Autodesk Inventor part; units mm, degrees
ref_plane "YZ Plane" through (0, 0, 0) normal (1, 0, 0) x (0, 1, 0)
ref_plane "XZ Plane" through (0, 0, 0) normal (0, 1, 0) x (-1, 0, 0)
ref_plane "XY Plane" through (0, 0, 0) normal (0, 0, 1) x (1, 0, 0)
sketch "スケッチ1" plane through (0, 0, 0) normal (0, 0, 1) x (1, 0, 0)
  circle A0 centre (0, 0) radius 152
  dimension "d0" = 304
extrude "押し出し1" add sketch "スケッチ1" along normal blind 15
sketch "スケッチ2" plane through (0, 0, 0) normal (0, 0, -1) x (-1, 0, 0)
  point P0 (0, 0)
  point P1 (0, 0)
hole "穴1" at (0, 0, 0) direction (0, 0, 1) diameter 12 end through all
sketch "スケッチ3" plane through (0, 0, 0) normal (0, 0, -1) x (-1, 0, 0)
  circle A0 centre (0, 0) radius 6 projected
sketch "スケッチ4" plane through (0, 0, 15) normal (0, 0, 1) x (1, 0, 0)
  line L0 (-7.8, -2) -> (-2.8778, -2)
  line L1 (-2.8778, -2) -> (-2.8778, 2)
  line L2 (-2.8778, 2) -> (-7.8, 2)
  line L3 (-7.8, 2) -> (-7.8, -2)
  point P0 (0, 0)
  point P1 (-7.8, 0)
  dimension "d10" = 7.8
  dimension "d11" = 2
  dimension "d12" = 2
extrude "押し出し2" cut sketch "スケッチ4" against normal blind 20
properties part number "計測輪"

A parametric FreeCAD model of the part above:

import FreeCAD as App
import Part
import Sketcher

V = App.Vector
Q = App.Units.Quantity

doc = App.newDocument("Part")
params = doc.addObject("Spreadsheet::Sheet", "Params")
for row, (alias, value) in enumerate([
    ("sketch1_diameter", "304 mm"),
    ("pad1_length", "15 mm"),
    ("sketch2_diameter", "12 mm"),
    ("hole_diameter", "12 mm"),
    ("pocket1_length", "20 mm"),
], start=1):
    params.set(f"A{row}", alias)
    params.set(f"B{row}", "=" + value)
    params.setAlias(f"B{row}", alias)

body = doc.addObject("PartDesign::Body", "Body")

# Sketch on XY plane
sketch1 = doc.addObject("Sketcher::SketchObject", "Sketch")
body.addObject(sketch1)
sketch1.AttachmentSupport = (doc.XY_Plane, [""])
sketch1.MapMode = "FlatFace"
sketch1.addGeometry(Part.Circle(V(0, 0, 0), V(0, 0, 1), 152), False)
sketch1.addConstraint([
    Sketcher.Constraint("Coincident", 0, 3, -1, 1),
    Sketcher.Constraint("Diameter", 0, Q("304 mm")),
])
sketch1.setExpression("Constraints[1]", "Params.sketch1_diameter")
pad1 = doc.addObject("PartDesign::Pad", "Pad")
body.addObject(pad1)
pad1.Profile = sketch1
pad1.setExpression("Length", "Params.pad1_length")

# Sketch on XY plane
sketch2 = doc.addObject("Sketcher::SketchObject", "Sketch001")
body.addObject(sketch2)
sketch2.AttachmentSupport = (doc.XY_Plane, [""])
sketch2.MapMode = "FlatFace"
sketch2.addGeometry(Part.Circle(V(0, 0, 0), V(0, 0, 1), 6), False)
sketch2.addConstraint([
    Sketcher.Constraint("Coincident", 0, 3, -1, 1),
    Sketcher.Constraint("Diameter", 0, Q("12 mm")),
])
sketch2.setExpression("Constraints[1]", "Params.sketch2_diameter")
doc.recompute()
hole = doc.addObject("PartDesign::Hole", "Hole")
body.addObject(hole)
hole.Profile = sketch2
hole.ThreadType = "None"
hole.setExpression("Diameter", "Params.hole_diameter")
hole.DepthType = "ThroughAll"
hole.Reversed = True

# Sketch on XY plane
sketch3 = doc.addObject("Sketcher::SketchObject", "Sketch002")
body.addObject(sketch3)
sketch3.AttachmentSupport = (doc.XY_Plane, [""])
sketch3.MapMode = "FlatFace"
sketch3.AttachmentOffset = App.Placement(V(0, 0, 15), App.Rotation())
sketch3.addGeometry([
    Part.LineSegment(V(-7.8, 2, 0), V(-7.8, -2, 0)),
    Part.LineSegment(V(-7.8, -2, 0), V(-2.8778, -2, 0)),
    Part.LineSegment(V(-2.8778, -2, 0), V(-2.8778, 2, 0)),
    Part.LineSegment(V(-2.8778, 2, 0), V(-7.8, 2, 0)),
], False)
sketch3.addConstraint([
    Sketcher.Constraint("Coincident", 0, 2, 1, 1),
    Sketcher.Constraint("Coincident", 1, 2, 2, 1),
    Sketcher.Constraint("Coincident", 2, 2, 3, 1),
    Sketcher.Constraint("Coincident", 3, 2, 0, 1),
    Sketcher.Constraint("Vertical", 0),
    Sketcher.Constraint("Horizontal", 1),
    Sketcher.Constraint("Vertical", 2),
    Sketcher.Constraint("Horizontal", 3),
    Sketcher.Constraint("DistanceY", 0, 2, -1, 1, Q("2 mm")),
    Sketcher.Constraint("DistanceY", -1, 1, 2, 2, Q("2 mm")),
    Sketcher.Constraint("DistanceX", 0, 2, -1, 1, Q("7.8 mm")),
    Sketcher.Constraint("DistanceX", 1, 1, 1, 2, Q("4.9222 mm")),
])
pocket1 = doc.addObject("PartDesign::Pocket", "Pocket")
body.addObject(pocket1)
pocket1.Profile = sketch3
pocket1.setExpression("Length", "Params.pocket1_length")

doc.recompute()
